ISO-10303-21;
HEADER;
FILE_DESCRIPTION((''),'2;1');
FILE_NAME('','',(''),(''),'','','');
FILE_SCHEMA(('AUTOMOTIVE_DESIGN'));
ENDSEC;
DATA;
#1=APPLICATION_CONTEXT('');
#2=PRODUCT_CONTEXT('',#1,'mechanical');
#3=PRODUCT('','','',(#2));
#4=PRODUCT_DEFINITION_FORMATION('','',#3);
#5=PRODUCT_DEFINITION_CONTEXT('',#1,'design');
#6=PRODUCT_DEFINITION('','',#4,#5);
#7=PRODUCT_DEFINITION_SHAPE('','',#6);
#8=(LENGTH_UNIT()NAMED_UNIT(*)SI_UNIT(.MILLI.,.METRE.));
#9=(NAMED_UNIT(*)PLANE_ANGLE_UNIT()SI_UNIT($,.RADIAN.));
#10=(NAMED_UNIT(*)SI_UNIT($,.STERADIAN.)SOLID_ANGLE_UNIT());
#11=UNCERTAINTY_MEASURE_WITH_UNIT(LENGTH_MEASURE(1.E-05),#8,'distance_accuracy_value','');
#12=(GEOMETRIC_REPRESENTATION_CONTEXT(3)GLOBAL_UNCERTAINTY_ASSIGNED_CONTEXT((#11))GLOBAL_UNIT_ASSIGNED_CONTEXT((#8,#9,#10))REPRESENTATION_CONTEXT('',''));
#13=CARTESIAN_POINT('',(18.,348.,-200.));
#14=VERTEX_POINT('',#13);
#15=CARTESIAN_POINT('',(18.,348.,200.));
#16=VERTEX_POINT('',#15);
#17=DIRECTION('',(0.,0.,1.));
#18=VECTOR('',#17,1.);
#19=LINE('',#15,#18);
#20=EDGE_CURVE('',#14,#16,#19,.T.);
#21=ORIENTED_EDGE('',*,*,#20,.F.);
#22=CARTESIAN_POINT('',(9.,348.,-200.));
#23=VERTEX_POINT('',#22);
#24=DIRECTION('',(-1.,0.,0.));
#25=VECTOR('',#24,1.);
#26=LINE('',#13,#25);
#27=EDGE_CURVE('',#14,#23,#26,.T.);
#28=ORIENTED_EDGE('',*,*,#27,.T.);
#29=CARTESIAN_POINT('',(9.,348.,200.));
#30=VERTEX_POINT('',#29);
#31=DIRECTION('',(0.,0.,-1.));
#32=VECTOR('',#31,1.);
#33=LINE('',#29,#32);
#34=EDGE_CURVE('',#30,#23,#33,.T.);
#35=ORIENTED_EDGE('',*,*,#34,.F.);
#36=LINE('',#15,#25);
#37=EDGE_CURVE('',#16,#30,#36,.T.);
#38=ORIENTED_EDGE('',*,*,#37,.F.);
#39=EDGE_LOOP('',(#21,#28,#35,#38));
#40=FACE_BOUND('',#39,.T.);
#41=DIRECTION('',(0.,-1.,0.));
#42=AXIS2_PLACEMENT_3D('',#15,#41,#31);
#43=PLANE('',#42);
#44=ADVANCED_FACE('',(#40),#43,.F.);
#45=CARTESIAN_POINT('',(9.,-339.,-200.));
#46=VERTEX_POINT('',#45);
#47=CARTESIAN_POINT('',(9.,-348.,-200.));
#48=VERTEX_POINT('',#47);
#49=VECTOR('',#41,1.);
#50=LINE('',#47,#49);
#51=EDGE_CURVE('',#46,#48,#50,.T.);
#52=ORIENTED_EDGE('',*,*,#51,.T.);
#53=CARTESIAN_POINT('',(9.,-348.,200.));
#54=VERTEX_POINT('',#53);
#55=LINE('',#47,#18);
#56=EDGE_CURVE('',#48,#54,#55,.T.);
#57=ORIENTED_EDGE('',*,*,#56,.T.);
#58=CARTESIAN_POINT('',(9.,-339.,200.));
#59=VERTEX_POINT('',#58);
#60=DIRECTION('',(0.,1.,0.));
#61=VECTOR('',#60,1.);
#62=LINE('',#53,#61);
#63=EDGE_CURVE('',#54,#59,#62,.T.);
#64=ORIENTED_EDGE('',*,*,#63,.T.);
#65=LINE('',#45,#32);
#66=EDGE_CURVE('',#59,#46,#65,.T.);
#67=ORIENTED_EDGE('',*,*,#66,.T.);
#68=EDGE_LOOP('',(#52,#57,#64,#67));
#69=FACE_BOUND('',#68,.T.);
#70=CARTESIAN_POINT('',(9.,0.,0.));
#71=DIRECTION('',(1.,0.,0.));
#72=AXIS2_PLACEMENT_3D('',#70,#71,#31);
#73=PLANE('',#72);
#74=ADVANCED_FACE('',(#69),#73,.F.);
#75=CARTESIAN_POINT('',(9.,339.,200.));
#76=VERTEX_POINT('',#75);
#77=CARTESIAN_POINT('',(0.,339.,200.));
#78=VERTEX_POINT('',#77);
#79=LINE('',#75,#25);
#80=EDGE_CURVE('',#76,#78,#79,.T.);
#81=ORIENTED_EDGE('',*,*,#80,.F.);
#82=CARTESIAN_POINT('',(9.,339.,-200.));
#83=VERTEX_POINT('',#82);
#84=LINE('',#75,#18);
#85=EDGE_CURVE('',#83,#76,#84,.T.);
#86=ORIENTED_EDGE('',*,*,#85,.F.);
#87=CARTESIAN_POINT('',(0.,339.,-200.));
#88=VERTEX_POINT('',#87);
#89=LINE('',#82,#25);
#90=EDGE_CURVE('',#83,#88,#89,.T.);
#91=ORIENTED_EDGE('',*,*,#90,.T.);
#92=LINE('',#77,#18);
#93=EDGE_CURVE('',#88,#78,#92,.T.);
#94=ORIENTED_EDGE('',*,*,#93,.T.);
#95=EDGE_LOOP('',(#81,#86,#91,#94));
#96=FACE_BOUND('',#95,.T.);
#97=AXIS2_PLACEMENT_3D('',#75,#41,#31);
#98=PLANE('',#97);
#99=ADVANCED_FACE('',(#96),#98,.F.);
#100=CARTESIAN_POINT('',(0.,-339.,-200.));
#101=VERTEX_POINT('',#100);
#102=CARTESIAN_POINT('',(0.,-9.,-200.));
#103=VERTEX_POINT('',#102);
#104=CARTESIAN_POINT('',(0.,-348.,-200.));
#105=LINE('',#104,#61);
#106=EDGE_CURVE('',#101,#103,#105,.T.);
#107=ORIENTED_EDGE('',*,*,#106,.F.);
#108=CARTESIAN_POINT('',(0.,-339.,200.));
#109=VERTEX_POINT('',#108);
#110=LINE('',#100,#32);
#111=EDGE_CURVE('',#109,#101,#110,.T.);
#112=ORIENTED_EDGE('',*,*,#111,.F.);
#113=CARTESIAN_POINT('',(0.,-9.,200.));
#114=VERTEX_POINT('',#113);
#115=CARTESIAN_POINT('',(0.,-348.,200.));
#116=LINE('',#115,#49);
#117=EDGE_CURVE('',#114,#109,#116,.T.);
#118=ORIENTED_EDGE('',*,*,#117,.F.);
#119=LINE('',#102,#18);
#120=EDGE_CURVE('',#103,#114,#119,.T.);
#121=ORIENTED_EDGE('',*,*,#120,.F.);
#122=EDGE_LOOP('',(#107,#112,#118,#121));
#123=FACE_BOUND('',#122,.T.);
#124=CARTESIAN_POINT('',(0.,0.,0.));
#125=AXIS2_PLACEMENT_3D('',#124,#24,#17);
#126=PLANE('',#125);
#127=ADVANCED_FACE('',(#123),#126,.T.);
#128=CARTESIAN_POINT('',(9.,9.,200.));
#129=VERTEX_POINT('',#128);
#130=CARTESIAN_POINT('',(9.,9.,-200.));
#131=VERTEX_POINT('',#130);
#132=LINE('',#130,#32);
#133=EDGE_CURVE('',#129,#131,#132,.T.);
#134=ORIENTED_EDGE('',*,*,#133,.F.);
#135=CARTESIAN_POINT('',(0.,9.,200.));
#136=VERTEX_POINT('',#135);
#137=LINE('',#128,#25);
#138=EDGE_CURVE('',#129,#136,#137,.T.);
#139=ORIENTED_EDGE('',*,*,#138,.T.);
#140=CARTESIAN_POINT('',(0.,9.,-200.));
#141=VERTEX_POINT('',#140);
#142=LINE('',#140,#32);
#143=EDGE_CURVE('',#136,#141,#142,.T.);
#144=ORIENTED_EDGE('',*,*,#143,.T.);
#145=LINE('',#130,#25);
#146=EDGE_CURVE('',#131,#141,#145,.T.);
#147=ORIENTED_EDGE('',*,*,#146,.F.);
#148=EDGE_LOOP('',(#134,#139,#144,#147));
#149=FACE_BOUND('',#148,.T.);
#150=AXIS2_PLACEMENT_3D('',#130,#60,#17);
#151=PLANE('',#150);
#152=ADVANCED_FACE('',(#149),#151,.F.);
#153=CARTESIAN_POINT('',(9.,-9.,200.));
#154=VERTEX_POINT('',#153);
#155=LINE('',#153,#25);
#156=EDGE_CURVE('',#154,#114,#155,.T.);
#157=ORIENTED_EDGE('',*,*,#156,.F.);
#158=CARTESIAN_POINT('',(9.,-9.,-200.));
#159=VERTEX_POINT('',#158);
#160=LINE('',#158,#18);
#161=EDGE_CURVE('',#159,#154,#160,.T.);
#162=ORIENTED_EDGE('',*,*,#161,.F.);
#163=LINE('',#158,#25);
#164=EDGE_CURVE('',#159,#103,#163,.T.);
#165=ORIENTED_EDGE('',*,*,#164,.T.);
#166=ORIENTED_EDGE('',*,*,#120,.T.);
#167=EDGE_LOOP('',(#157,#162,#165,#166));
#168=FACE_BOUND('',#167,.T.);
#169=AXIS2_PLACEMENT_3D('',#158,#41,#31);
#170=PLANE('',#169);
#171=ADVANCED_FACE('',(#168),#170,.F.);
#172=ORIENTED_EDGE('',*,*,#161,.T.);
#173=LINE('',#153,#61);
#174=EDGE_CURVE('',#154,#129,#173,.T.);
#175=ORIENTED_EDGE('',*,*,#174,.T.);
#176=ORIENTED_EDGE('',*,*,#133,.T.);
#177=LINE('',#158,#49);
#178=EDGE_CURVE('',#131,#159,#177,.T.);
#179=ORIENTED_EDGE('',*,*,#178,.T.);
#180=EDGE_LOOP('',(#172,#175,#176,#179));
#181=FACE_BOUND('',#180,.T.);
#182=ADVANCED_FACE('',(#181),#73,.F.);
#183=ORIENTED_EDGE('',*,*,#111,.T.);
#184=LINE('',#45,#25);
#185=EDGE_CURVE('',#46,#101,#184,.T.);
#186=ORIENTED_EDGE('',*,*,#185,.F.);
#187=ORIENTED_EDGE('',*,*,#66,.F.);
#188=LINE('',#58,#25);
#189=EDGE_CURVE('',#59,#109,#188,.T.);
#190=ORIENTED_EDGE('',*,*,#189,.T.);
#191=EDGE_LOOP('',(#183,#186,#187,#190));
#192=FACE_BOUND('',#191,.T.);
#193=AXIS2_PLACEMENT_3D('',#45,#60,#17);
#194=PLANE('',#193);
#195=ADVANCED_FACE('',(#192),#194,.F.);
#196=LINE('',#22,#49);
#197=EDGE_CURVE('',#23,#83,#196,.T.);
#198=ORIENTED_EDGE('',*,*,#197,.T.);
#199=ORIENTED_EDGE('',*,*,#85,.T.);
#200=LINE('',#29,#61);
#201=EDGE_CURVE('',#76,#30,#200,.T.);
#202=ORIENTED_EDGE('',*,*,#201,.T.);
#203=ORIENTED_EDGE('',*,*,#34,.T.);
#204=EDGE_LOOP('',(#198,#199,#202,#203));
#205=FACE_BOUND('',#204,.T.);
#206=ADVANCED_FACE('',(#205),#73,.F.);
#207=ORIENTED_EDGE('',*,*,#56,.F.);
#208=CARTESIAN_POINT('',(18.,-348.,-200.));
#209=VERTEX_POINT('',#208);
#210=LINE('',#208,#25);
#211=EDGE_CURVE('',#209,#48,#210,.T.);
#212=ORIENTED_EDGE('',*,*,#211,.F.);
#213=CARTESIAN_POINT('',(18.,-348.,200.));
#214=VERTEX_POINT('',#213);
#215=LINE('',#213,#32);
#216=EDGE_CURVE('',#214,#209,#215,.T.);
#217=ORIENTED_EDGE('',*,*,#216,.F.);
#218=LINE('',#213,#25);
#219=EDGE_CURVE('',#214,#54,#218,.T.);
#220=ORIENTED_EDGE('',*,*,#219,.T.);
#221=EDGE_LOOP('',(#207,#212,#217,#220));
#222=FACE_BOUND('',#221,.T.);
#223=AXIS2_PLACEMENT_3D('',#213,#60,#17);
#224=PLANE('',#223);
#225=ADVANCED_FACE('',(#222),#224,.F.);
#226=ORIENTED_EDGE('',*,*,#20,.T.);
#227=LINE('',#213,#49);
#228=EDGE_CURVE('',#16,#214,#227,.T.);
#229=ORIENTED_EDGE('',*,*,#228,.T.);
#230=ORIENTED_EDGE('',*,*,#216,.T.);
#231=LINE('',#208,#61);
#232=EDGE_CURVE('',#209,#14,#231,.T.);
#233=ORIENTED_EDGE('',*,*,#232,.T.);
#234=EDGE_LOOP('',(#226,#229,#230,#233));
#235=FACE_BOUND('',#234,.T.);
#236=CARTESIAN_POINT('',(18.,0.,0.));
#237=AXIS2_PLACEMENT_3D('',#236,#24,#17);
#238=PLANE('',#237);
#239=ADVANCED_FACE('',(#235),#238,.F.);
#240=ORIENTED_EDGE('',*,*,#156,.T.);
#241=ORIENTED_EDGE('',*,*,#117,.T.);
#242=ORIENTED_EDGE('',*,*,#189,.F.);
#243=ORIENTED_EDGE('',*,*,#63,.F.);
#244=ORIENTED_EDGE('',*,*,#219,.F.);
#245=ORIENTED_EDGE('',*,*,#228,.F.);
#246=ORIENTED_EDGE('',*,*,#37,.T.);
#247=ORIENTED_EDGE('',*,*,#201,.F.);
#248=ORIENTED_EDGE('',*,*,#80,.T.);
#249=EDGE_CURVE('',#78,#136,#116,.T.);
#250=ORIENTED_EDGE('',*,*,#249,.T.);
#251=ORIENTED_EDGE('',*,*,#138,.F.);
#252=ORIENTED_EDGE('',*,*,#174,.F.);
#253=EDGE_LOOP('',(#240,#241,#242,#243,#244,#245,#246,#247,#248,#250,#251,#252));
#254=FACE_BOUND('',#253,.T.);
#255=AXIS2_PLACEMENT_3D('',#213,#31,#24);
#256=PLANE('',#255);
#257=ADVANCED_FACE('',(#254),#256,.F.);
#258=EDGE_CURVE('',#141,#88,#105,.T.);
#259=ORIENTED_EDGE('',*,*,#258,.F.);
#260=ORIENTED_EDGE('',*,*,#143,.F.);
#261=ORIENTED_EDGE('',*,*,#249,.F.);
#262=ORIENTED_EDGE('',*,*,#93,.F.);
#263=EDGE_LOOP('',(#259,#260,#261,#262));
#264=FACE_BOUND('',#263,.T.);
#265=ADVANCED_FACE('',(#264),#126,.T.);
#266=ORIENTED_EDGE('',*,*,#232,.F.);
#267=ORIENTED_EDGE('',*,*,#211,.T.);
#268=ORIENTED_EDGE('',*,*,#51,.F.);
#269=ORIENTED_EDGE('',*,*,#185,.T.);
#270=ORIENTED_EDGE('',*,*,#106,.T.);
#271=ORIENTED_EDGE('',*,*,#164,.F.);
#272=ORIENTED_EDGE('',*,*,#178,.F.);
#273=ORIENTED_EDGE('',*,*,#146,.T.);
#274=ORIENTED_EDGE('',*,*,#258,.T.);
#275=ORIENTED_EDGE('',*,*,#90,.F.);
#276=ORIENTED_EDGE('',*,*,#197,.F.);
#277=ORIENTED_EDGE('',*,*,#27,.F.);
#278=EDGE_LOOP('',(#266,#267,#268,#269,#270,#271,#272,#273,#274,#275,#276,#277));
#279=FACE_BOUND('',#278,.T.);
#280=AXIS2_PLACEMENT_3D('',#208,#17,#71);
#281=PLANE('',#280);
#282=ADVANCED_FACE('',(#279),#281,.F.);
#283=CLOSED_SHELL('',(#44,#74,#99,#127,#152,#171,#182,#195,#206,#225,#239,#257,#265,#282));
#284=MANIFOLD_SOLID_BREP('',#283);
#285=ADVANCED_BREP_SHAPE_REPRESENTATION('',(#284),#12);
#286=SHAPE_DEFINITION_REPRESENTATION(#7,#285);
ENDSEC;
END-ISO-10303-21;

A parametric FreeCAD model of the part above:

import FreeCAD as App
import Part
import Sketcher
from FreeCAD import Vector

doc = App.newDocument("Part")
params = doc.addObject("Spreadsheet::Sheet", "Params")
for row, (alias, value) in enumerate([
    ("sketch1_width", "696 mm"),
    ("sketch1_height", "400 mm"),
    ("pad1_length", "18 mm"),
    ("sketch2_width", "9 mm"),
    ("sketch2_height", "400 mm"),
    ("pocket1_length", "9 mm"),
    ("sketch3_width", "18 mm"),
    ("sketch3_height", "400 mm"),
    ("pocket2_length", "9 mm"),
], start=1):
    params.set(f"A{row}", alias)
    params.set(f"B{row}", "=" + value)
    params.setAlias(f"B{row}", alias)

body = doc.addObject("PartDesign::Body", "Body")

# Sketch on YZ plane
sketch1 = body.newObject("Sketcher::SketchObject", "Sketch")
sketch1.AttachmentSupport = (doc.getObject("YZ_Plane"), [""])
sketch1.MapMode = "FlatFace"
sketch1.addGeometry([
    Part.LineSegment(Vector(348, 200, 0), Vector(-348, 200, 0)),
    Part.LineSegment(Vector(-348, 200, 0), Vector(-348, -200, 0)),
    Part.LineSegment(Vector(-348, -200, 0), Vector(348, -200, 0)),
    Part.LineSegment(Vector(348, -200, 0), Vector(348, 200, 0)),
], False)
sketch1.addConstraint([
    Sketcher.Constraint("Coincident", 0, 2, 1, 1),
    Sketcher.Constraint("Coincident", 1, 2, 2, 1),
    Sketcher.Constraint("Coincident", 2, 2, 3, 1),
    Sketcher.Constraint("Coincident", 3, 2, 0, 1),
    Sketcher.Constraint("Horizontal", 0),
    Sketcher.Constraint("Vertical", 1),
    Sketcher.Constraint("Horizontal", 2),
    Sketcher.Constraint("Vertical", 3),
    Sketcher.Constraint("Symmetric", 0, 2, 2, 2, -1, 1),
    Sketcher.Constraint("DistanceX", 0, 2, 0, 1, 696.0),
    Sketcher.Constraint("DistanceY", 1, 2, 1, 1, 400.0),
])
sketch1.setExpression("Constraints[9]", "Params.sketch1_width")
sketch1.setExpression("Constraints[10]", "Params.sketch1_height")
pad1 = body.newObject("PartDesign::Pad", "Pad")
pad1.Profile = sketch1
pad1.setExpression("Length", "Params.pad1_length")

# Sketch on YZ plane
sketch2 = body.newObject("Sketcher::SketchObject", "Sketch001")
sketch2.AttachmentSupport = (doc.getObject("YZ_Plane"), [""])
sketch2.MapMode = "FlatFace"
sketch2.addGeometry([
    Part.LineSegment(Vector(-339, -200, 0), Vector(-348, -200, 0)),  # 0
    Part.LineSegment(Vector(-348, -200, 0), Vector(-348, 200, 0)),  # 1
    Part.LineSegment(Vector(-348, 200, 0), Vector(-339, 200, 0)),  # 2
    Part.LineSegment(Vector(-339, 200, 0), Vector(-339, -200, 0)),  # 3
    Part.LineSegment(Vector(348, -200, 0), Vector(339, -200, 0)),  # 4
    Part.LineSegment(Vector(339, -200, 0), Vector(339, 200, 0)),  # 5
    Part.LineSegment(Vector(339, 200, 0), Vector(348, 200, 0)),  # 6
    Part.LineSegment(Vector(348, 200, 0), Vector(348, -200, 0)),  # 7
], False)
sketch2.addConstraint([
    Sketcher.Constraint("Coincident", 0, 2, 1, 1),
    Sketcher.Constraint("Coincident", 1, 2, 2, 1),
    Sketcher.Constraint("Coincident", 2, 2, 3, 1),
    Sketcher.Constraint("Coincident", 3, 2, 0, 1),
    Sketcher.Constraint("Coincident", 4, 2, 5, 1),
    Sketcher.Constraint("Coincident", 5, 2, 6, 1),
    Sketcher.Constraint("Coincident", 6, 2, 7, 1),
    Sketcher.Constraint("Coincident", 7, 2, 4, 1),
    Sketcher.Constraint("Horizontal", 0),
    Sketcher.Constraint("Vertical", 1),
    Sketcher.Constraint("Horizontal", 2),
    Sketcher.Constraint("Vertical", 3),
    Sketcher.Constraint("Horizontal", 4),
    Sketcher.Constraint("Vertical", 5),
    Sketcher.Constraint("Horizontal", 6),
    Sketcher.Constraint("Vertical", 7),
    Sketcher.Constraint("Symmetric", 2, 2, 4, 2, -1, 1),
    Sketcher.Constraint("Symmetric", 0, 2, 6, 2, -1, 1),
    Sketcher.Constraint("Horizontal", 3, 2, 4, 2),
    Sketcher.Constraint("DistanceX", 0, 2, 0, 1, 9.0),
    Sketcher.Constraint("DistanceY", 1, 1, 1, 2, 400.0),
    Sketcher.Constraint("DistanceX", 0, 2, -1, 1, 348.0),
])
sketch2.setExpression("Constraints[19]", "Params.sketch2_width")
sketch2.setExpression("Constraints[20]", "Params.sketch2_height")
pocket1 = body.newObject("PartDesign::Pocket", "Pocket")
pocket1.Profile = sketch2
pocket1.setExpression("Length", "Params.pocket1_length")
pocket1.Reversed = True

# Sketch on YZ plane
sketch3 = body.newObject("Sketcher::SketchObject", "Sketch002")
sketch3.AttachmentSupport = (doc.getObject("YZ_Plane"), [""])
sketch3.MapMode = "FlatFace"
sketch3.addGeometry([
    Part.LineSegment(Vector(9, -200, 0), Vector(-9, -200, 0)),
    Part.LineSegment(Vector(-9, -200, 0), Vector(-9, 200, 0)),
    Part.LineSegment(Vector(-9, 200, 0), Vector(9, 200, 0)),
    Part.LineSegment(Vector(9, 200, 0), Vector(9, -200, 0)),
], False)
sketch3.addConstraint([
    Sketcher.Constraint("Coincident", 0, 2, 1, 1),
    Sketcher.Constraint("Coincident", 1, 2, 2, 1),
    Sketcher.Constraint("Coincident", 2, 2, 3, 1),
    Sketcher.Constraint("Coincident", 3, 2, 0, 1),
    Sketcher.Constraint("Horizontal", 0),
    Sketcher.Constraint("Vertical", 1),
    Sketcher.Constraint("Horizontal", 2),
    Sketcher.Constraint("Vertical", 3),
    Sketcher.Constraint("Symmetric", 0, 2, 2, 2, -1, 1),
    Sketcher.Constraint("DistanceX", 0, 2, 0, 1, 18.0),
    Sketcher.Constraint("DistanceY", 1, 1, 1, 2, 400.0),
])
sketch3.setExpression("Constraints[9]", "Params.sketch3_width")
sketch3.setExpression("Constraints[10]", "Params.sketch3_height")
pocket2 = body.newObject("PartDesign::Pocket", "Pocket001")
pocket2.Profile = sketch3
pocket2.setExpression("Length", "Params.pocket2_length")
pocket2.Reversed = True

doc.recompute()
